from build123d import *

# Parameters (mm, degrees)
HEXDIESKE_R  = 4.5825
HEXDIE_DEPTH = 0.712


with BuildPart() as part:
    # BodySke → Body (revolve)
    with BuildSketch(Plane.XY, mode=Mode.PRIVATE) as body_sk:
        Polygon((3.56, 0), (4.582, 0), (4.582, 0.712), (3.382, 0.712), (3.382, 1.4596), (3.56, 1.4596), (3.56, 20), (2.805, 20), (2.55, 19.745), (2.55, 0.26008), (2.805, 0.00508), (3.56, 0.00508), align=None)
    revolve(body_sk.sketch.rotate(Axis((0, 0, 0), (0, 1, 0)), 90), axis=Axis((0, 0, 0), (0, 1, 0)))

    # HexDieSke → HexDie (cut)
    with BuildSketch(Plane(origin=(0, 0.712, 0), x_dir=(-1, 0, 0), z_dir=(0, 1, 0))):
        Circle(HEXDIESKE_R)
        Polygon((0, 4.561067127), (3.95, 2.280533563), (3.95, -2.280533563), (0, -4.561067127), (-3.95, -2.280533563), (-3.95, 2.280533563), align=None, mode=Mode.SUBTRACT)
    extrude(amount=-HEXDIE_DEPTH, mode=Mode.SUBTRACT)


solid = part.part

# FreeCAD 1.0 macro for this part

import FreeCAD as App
import Part
import Sketcher

V = App.Vector
Q = App.Units.Quantity

doc = App.newDocument("Part")
body = doc.addObject("PartDesign::Body", "Body")

sketch1 = body.newObject("Sketcher::SketchObject", "Sketch")
sketch1.AttachmentSupport = (doc.getObject("XY_Plane"), [""])
sketch1.MapMode = "FlatFace"
sketch1.addGeometry([
    Part.LineSegment(V(3.56, 0, 0), V(4.582, 0, 0)),
    Part.LineSegment(V(4.582, 0, 0), V(4.582, 0.712, 0)),
    Part.LineSegment(V(4.582, 0.712, 0), V(3.382, 0.712, 0)),
    Part.LineSegment(V(3.382, 0.712, 0), V(3.382, 1.4596, 0)),
    Part.LineSegment(V(3.382, 1.4596, 0), V(3.56, 1.4596, 0)),
    Part.LineSegment(V(3.56, 1.4596, 0), V(3.56, 20, 0)),
    Part.LineSegment(V(3.56, 20, 0), V(2.805, 20, 0)),
    Part.LineSegment(V(2.805, 20, 0), V(2.55, 19.745, 0)),
    Part.LineSegment(V(2.55, 19.745, 0), V(2.55, 0.26008, 0)),
    Part.LineSegment(V(2.55, 0.26008, 0), V(2.805, 0.00508, 0)),
    Part.LineSegment(V(2.805, 0.00508, 0), V(3.56, 0.00508, 0)),
    Part.LineSegment(V(3.56, 0.00508, 0), V(3.56, 0, 0)),
], False)
sketch1.addConstraint([
    Sketcher.Constraint("Coincident", 0, 2, 1, 1),
    Sketcher.Constraint("Coincident", 1, 2, 2, 1),
    Sketcher.Constraint("Coincident", 2, 2, 3, 1),
    Sketcher.Constraint("Coincident", 3, 2, 4, 1),
    Sketcher.Constraint("Coincident", 4, 2, 5, 1),
    Sketcher.Constraint("Coincident", 5, 2, 6, 1),
    Sketcher.Constraint("Coincident", 6, 2, 7, 1),
    Sketcher.Constraint("Coincident", 7, 2, 8, 1),
    Sketcher.Constraint("Coincident", 8, 2, 9, 1),
    Sketcher.Constraint("Coincident", 9, 2, 10, 1),
    Sketcher.Constraint("Coincident", 10, 2, 11, 1),
    Sketcher.Constraint("Coincident", 11, 2, 0, 1),
    Sketcher.Constraint("Horizontal", 0),
    Sketcher.Constraint("Vertical", 1),
    Sketcher.Constraint("Horizontal", 2),
    Sketcher.Constraint("Vertical", 3),
    Sketcher.Constraint("Horizontal", 4),
    Sketcher.Constraint("Vertical", 5),
    Sketcher.Constraint("Horizontal", 6),
    Sketcher.Constraint("Vertical", 8),
    Sketcher.Constraint("Horizontal", 10),
    Sketcher.Constraint("Vertical", 11),
    Sketcher.Constraint("PointOnObject", 0, 2, -1),
    Sketcher.Constraint("Perpendicular", 7, 9),
    Sketcher.Constraint("Vertical", 6, 2, 9, 2),
    Sketcher.Constraint("Vertical", 5, 2, 10, 2),
    Sketcher.Constraint("Equal", 7, 9),
    Sketcher.Constraint("DistanceX", 2, 2, 2, 1, Q("1.2 mm")),
    Sketcher.Constraint("DistanceY", -1, 1, 5, 2, Q("20 mm")),
    Sketcher.Constraint("DistanceX", 0, 1, 0, 2, Q("1.022 mm")),
    Sketcher.Constraint("DistanceX", 6, 2, 6, 1, Q("0.755 mm")),
    Sketcher.Constraint("DistanceY", 1, 1, 1, 2, Q("0.712 mm")),
    Sketcher.Constraint("DistanceX", -1, 1, 4, 2, Q("3.56 mm")),
    Sketcher.Constraint("DistanceX", -1, 1, 7, 2, Q("2.55 mm")),
    Sketcher.Constraint("DistanceY", 3, 1, 3, 2, Q("0.7476 mm")),
    Sketcher.Constraint("DistanceY", 8, 2, 8, 1, Q("19.48492 mm")),
])
revolution = body.newObject("PartDesign::Revolution", "Revolution")
revolution.Profile = sketch1
revolution.ReferenceAxis = (sketch1, ["V_Axis"])
revolution.Angle = 360

sketch2 = body.newObject("Sketcher::SketchObject", "Sketch001")
sketch2.AttachmentSupport = (doc.getObject("XZ_Plane"), [""])
sketch2.MapMode = "FlatFace"
sketch2.AttachmentOffset = App.Placement(V(0, 0, -0.712), App.Rotation())
sketch2.addGeometry([
    Part.Circle(V(0, 0, 0), V(0, 0, 1), 4.5825),
    Part.LineSegment(V(3.95, 2.280534, 0), V(0, 4.561067, 0)),
    Part.LineSegment(V(0, 4.561067, 0), V(-3.95, 2.280534, 0)),
    Part.LineSegment(V(-3.95, 2.280534, 0), V(-3.95, -2.280534, 0)),
    Part.LineSegment(V(-3.95, -2.280534, 0), V(0, -4.561067, 0)),
    Part.LineSegment(V(0, -4.561067, 0), V(3.95, -2.280534, 0)),
    Part.LineSegment(V(3.95, -2.280534, 0), V(3.95, 2.280534, 0)),
], False)
sketch2.addConstraint([
    Sketcher.Constraint("Coincident", 1, 2, 2, 1),
    Sketcher.Constraint("Coincident", 2, 2, 3, 1),
    Sketcher.Constraint("Coincident", 3, 2, 4, 1),
    Sketcher.Constraint("Coincident", 4, 2, 5, 1),
    Sketcher.Constraint("Coincident", 5, 2, 6, 1),
    Sketcher.Constraint("Coincident", 6, 2, 1, 1),
    Sketcher.Constraint("Vertical", 3),
    Sketcher.Constraint("Vertical", 6),
    Sketcher.Constraint("Coincident", 0, 3, -1, 1),
    Sketcher.Constraint("Symmetric", 1, 2, 4, 2, -1, 1),
    Sketcher.Constraint("Symmetric", 2, 2, 5, 2, -1, 1),
    Sketcher.Constraint("PointOnObject", 1, 2, -2),
    Sketcher.Constraint("Parallel", 1, 4),
    Sketcher.Constraint("Horizontal", 3, 2, 5, 2),
    Sketcher.Constraint("Angle", 1, Q("150 deg")),
    Sketcher.Constraint("Diameter", 0, Q("9.165 mm")),
    Sketcher.Constraint("DistanceX", 3, 2, 5, 2, Q("7.9 mm")),
    Sketcher.Constraint("DistanceY", 3, 2, 1, 2, Q("6.841601 mm")),
])
pocket1 = body.newObject("PartDesign::Pocket", "Pocket")
pocket1.Profile = sketch2
pocket1.Length = 0.712
pocket1.Reversed = True

doc.recompute()
